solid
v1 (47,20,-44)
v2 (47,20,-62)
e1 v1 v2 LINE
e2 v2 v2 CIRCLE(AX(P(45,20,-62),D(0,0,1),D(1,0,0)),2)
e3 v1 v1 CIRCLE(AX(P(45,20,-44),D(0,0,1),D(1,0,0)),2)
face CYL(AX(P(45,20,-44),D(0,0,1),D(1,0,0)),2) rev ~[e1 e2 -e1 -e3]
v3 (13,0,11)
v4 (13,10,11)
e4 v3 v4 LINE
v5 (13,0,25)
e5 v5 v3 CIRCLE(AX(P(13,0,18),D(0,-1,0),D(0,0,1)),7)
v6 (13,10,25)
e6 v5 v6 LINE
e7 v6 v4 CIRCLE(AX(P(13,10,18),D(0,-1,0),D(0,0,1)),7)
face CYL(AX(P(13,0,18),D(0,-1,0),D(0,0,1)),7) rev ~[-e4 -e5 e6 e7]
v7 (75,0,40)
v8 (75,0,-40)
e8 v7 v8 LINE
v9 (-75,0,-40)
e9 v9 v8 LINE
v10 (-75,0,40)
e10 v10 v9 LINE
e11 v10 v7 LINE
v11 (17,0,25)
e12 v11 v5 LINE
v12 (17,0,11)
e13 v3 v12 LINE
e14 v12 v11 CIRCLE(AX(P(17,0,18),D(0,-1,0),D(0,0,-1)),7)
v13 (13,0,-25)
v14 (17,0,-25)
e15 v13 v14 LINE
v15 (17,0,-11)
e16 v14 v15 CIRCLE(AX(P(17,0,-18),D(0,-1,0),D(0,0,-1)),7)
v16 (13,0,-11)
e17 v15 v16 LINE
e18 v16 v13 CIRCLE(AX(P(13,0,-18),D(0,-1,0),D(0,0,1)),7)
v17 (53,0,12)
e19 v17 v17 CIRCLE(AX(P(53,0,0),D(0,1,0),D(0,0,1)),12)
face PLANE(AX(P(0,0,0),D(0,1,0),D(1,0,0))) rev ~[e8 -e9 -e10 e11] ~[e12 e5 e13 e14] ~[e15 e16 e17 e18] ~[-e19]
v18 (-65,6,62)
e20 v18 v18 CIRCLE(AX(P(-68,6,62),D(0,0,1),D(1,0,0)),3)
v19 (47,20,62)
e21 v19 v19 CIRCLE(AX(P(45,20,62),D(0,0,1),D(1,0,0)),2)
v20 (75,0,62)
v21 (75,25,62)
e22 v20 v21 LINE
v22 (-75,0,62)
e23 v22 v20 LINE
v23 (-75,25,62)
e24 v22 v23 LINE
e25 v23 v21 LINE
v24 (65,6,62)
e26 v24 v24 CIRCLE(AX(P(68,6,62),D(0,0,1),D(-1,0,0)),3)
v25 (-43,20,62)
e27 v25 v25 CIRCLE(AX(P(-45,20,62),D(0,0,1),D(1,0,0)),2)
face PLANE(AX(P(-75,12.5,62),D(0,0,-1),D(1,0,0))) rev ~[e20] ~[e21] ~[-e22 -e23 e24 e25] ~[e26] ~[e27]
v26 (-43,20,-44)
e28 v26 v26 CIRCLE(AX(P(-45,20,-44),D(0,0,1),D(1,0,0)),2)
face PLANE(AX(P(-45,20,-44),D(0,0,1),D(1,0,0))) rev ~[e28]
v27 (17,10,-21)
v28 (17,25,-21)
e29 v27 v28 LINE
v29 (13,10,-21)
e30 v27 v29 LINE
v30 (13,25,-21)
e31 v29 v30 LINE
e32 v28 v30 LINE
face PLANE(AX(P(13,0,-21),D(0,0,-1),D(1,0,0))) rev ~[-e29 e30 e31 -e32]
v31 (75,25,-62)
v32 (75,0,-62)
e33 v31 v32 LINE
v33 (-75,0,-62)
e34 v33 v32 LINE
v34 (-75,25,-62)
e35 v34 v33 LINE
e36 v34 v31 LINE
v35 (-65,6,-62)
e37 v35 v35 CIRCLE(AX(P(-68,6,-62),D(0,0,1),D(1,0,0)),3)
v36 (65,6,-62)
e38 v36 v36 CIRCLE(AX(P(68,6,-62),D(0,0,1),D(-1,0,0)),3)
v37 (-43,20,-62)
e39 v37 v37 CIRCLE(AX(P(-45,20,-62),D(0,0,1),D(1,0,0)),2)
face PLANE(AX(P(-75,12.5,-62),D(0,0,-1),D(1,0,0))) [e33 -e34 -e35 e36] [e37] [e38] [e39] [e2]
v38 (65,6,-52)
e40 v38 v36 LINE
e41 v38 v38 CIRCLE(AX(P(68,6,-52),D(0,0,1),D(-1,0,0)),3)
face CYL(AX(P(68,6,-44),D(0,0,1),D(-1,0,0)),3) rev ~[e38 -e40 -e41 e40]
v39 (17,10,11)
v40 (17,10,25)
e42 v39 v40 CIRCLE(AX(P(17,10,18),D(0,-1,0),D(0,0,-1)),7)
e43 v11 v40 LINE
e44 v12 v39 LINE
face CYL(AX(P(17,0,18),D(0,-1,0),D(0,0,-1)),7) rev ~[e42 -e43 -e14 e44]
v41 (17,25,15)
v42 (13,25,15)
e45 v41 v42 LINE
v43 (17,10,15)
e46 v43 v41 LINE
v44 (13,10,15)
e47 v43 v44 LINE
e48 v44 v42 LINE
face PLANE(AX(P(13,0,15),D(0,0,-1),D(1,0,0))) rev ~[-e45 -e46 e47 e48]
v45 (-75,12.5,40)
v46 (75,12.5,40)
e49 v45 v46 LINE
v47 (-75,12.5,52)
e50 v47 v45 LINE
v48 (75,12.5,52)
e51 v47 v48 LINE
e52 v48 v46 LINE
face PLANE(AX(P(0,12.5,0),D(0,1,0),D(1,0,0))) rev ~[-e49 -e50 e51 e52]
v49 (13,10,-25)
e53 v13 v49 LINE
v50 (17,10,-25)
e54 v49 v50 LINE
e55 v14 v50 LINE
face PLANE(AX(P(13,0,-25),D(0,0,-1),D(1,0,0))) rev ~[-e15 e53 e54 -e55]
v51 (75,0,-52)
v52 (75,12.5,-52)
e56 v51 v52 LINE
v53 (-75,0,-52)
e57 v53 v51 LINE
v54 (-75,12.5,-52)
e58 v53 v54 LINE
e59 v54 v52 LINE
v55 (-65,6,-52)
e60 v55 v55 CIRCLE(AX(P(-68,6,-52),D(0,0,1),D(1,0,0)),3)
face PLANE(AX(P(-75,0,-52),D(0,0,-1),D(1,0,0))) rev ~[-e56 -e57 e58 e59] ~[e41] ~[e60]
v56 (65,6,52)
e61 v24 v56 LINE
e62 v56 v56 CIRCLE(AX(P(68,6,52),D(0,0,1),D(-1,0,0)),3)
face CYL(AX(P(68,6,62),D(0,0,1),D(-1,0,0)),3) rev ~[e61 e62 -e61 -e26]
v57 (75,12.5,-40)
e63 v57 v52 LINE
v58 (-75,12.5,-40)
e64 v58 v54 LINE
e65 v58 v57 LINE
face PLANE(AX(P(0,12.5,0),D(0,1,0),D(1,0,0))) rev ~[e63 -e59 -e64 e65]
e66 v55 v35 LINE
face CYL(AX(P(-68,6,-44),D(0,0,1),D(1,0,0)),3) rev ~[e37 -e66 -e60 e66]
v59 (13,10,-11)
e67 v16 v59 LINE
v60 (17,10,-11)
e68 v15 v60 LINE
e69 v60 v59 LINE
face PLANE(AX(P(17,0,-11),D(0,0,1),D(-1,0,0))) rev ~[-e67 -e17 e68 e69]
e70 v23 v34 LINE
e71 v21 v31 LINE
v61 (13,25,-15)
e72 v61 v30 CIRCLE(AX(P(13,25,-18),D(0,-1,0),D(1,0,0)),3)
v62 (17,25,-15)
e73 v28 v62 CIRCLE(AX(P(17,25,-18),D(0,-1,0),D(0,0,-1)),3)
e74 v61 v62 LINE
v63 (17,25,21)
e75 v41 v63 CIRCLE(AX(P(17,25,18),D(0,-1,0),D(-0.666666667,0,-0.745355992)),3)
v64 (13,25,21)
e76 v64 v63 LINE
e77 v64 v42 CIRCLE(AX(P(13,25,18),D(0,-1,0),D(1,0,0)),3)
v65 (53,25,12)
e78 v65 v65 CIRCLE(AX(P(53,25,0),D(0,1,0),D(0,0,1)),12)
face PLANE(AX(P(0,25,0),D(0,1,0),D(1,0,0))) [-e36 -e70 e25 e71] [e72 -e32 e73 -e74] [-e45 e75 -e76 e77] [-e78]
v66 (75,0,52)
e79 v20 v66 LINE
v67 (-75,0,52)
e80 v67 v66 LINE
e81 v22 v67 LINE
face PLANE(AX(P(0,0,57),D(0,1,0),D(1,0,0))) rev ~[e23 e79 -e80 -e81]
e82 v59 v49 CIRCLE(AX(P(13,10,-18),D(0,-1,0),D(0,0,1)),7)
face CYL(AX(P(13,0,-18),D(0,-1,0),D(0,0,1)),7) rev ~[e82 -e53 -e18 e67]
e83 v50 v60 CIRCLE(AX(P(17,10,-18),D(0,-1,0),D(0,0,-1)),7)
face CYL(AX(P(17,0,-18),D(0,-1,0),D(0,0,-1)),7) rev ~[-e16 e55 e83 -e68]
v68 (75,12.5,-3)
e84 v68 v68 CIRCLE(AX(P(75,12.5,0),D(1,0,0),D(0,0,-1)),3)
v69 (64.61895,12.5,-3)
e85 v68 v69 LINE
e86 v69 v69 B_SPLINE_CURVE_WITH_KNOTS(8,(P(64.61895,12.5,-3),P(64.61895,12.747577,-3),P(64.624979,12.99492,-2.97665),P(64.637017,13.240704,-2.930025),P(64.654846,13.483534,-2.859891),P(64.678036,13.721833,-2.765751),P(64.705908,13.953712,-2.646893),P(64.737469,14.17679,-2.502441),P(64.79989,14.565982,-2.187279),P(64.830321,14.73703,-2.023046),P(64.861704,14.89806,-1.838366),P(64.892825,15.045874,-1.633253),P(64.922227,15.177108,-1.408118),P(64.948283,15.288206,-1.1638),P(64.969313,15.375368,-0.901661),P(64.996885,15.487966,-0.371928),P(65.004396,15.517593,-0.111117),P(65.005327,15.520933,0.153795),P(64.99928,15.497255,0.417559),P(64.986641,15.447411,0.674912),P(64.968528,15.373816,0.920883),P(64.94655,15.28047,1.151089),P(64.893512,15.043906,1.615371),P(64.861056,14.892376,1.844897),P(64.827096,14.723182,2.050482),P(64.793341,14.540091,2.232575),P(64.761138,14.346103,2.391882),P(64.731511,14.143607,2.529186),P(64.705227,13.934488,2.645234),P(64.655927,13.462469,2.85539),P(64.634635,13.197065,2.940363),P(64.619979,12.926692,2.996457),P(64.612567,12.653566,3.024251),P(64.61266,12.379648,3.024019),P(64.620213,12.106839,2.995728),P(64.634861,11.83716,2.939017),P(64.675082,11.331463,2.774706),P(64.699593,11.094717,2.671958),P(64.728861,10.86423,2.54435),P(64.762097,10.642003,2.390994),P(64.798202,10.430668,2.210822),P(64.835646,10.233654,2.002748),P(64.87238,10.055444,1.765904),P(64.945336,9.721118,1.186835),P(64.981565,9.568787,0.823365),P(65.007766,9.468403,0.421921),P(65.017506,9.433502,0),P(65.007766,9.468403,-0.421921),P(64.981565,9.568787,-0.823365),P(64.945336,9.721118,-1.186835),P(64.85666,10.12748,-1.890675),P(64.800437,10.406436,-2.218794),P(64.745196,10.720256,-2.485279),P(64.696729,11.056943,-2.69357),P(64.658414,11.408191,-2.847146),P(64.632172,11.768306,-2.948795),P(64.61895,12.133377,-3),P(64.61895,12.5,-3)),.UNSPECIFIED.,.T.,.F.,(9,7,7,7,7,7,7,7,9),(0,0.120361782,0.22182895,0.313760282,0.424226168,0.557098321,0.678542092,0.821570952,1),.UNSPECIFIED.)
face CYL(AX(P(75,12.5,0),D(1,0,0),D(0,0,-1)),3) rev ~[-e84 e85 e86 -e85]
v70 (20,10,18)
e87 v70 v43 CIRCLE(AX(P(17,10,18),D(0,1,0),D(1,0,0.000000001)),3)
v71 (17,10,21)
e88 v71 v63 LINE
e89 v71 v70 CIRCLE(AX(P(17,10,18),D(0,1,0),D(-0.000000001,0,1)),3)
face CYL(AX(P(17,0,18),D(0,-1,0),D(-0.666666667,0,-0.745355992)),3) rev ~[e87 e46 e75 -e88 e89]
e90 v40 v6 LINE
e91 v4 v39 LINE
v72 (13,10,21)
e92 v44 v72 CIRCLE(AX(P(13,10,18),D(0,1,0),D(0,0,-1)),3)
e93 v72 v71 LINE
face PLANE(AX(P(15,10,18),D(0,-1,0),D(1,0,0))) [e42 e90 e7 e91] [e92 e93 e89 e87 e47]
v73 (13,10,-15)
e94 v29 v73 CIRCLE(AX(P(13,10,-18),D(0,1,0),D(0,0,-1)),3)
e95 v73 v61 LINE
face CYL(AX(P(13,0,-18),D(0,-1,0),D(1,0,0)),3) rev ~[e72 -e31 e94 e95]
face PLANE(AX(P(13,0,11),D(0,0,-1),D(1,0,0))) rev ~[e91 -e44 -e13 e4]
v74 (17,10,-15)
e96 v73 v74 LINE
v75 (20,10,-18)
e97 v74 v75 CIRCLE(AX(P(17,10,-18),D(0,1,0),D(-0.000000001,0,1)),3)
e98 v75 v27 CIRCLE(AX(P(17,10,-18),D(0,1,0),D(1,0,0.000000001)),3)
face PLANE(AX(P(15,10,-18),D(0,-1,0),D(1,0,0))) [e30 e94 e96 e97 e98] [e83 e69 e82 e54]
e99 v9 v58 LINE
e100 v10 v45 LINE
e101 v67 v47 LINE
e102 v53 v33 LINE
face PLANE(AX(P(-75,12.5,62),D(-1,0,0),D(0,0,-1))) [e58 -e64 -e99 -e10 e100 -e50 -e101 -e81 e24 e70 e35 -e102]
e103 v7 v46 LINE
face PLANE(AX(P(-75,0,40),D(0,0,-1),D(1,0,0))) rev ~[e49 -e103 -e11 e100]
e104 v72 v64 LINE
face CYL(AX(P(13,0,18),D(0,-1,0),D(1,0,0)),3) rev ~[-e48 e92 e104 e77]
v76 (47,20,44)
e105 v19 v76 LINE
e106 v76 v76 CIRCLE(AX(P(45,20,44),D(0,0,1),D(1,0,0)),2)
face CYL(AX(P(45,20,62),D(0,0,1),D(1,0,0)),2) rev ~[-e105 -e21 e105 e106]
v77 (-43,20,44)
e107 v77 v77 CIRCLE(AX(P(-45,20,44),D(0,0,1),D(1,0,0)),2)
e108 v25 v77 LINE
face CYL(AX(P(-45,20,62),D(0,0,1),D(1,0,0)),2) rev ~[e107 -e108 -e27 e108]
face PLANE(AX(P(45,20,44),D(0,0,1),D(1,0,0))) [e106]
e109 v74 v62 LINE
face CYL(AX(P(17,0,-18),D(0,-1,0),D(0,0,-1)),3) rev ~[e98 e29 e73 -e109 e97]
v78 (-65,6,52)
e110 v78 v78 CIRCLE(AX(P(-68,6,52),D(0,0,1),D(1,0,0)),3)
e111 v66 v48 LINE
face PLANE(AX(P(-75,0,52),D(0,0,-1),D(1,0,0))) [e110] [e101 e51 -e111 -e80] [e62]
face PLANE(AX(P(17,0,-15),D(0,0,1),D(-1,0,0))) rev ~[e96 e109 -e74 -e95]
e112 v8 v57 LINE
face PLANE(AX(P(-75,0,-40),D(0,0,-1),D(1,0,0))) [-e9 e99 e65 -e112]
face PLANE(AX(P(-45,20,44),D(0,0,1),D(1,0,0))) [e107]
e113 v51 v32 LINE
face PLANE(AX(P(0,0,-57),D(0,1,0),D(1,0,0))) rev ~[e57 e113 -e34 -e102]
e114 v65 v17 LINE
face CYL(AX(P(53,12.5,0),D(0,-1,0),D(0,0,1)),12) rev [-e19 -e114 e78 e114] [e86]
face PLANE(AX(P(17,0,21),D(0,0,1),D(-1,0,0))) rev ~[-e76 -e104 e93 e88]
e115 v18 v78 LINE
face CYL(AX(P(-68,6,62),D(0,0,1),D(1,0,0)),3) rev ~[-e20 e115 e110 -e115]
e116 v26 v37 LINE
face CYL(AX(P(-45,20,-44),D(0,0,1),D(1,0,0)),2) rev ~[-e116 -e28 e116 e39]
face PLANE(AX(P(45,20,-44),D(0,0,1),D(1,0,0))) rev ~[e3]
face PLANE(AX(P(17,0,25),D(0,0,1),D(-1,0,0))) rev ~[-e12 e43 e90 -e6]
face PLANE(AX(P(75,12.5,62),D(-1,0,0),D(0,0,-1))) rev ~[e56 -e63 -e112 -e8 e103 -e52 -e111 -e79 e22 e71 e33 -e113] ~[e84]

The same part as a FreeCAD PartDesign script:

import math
import FreeCAD as App
import Part
import Sketcher
from FreeCAD import Vector


def add_polygon(sketch, points):
    """Adds a closed chain of lines whose ends are joined by coincident constraints."""
    first, n = sketch.GeometryCount, len(points)
    for a, b in zip(points, points[1:] + points[:1]):
        sketch.addGeometry(Part.LineSegment(App.Vector(*a, 0), App.Vector(*b, 0)), False)
    for i in range(n):
        sketch.addConstraint(Sketcher.Constraint("Coincident", first + i, 2, first + (i + 1) % n, 1))

doc = App.newDocument("Part")
body = doc.addObject("PartDesign::Body", "Body")

sketch1 = body.newObject("Sketcher::SketchObject", "Sketch")
sketch1.AttachmentSupport = (doc.getObject("XZ_Plane"), [""])
sketch1.MapMode = "FlatFace"
add_polygon(sketch1, [(-75, -62), (-75, -52), (75, -52), (75, -62)])
sketch1.addConstraint([
    Sketcher.Constraint("Vertical", 0),
    Sketcher.Constraint("Horizontal", 1),
    Sketcher.Constraint("Vertical", 2),
    Sketcher.Constraint("Horizontal", 3),
    Sketcher.Constraint("DistanceX", 1, 1, 1, 2, 150.0),
    Sketcher.Constraint("DistanceY", 0, 1, 0, 2, 10.0),
    Sketcher.Constraint("DistanceX", 0, 2, -1, 1, 75.0),
    Sketcher.Constraint("DistanceY", 0, 2, -1, 1, 52.0),
])
pad1 = body.newObject("PartDesign::Pad", "Pad")
pad1.Profile = sketch1
pad1.Length = 12.5
pad1.Reversed = True
body2 = doc.addObject("PartDesign::Body", "Body001")

sketch2 = body2.newObject("Sketcher::SketchObject", "Sketch001")
sketch2.AttachmentSupport = (doc.getObject("XZ_Plane001"), [""])
sketch2.MapMode = "FlatFace"
add_polygon(sketch2, [(-75, -40), (-75, 40), (75, 40), (75, -40)])
sketch2.addGeometry(Part.Circle(Vector(53, 0, 0), Vector(0, 0, 1), 12), False)
sketch2.addConstraint([
    Sketcher.Constraint("Vertical", 0),
    Sketcher.Constraint("Horizontal", 1),
    Sketcher.Constraint("Vertical", 2),
    Sketcher.Constraint("Horizontal", 3),
    Sketcher.Constraint("Symmetric", 0, 2, 2, 2, -1, 1),
    Sketcher.Constraint("PointOnObject", 4, 3, -1),
    Sketcher.Constraint("Diameter", 4, 24.0),
    Sketcher.Constraint("DistanceX", 1, 1, 1, 2, 150.0),
    Sketcher.Constraint("DistanceY", 0, 1, 0, 2, 80.0),
    Sketcher.Constraint("DistanceX", -1, 1, 4, 3, 53.0),
])
pad2 = body2.newObject("PartDesign::Pad", "Pad001")
pad2.Profile = sketch2
pad2.Length = 12.5
pad2.Reversed = True
body3 = doc.addObject("PartDesign::Body", "Body002")

sketch3 = body3.newObject("Sketcher::SketchObject", "Sketch002")
sketch3.AttachmentSupport = (doc.getObject("XZ_Plane002"), [""])
sketch3.MapMode = "FlatFace"
add_polygon(sketch3, [(-75, 52), (-75, 62), (75, 62), (75, 52)])
sketch3.addConstraint([
    Sketcher.Constraint("Vertical", 0),
    Sketcher.Constraint("Horizontal", 1),
    Sketcher.Constraint("Vertical", 2),
    Sketcher.Constraint("Horizontal", 3),
    Sketcher.Constraint("DistanceX", 1, 1, 1, 2, 150.0),
    Sketcher.Constraint("DistanceY", 0, 1, 0, 2, 10.0),
    Sketcher.Constraint("DistanceX", 0, 2, -1, 1, 75.0),
    Sketcher.Constraint("DistanceY", -1, 1, 0, 2, 62.0),
])
pad3 = body3.newObject("PartDesign::Pad", "Pad002")
pad3.Profile = sketch3
pad3.Length = 12.5
pad3.Reversed = True
body.AllowCompound = True
doc.recompute()

boolean = body.newObject("PartDesign::Boolean", "Boolean")
boolean.Type = "Fuse"
boolean.addObjects([body2])
doc.recompute()

boolean2 = body.newObject("PartDesign::Boolean", "Boolean001")
boolean2.Type = "Fuse"
boolean2.addObjects([body3])

sketch4 = body.newObject("Sketcher::SketchObject", "Sketch003")
sketch4.AttachmentSupport = (doc.getObject("XZ_Plane"), [""])
sketch4.MapMode = "FlatFace"
sketch4.AttachmentOffset = App.Placement(Vector(0, 0, -12.5), App.Rotation())
add_polygon(sketch4, [(-75, -62), (-75, 62), (75, 62), (75, -62)])
sketch4.addGeometry(Part.Circle(Vector(53, 0, 0), Vector(0, 0, 1), 12), False)
sketch4.addConstraint([
    Sketcher.Constraint("Vertical", 0),
    Sketcher.Constraint("Horizontal", 1),
    Sketcher.Constraint("Vertical", 2),
    Sketcher.Constraint("Horizontal", 3),
    Sketcher.Constraint("Symmetric", 0, 2, 2, 2, -1, 1),
    Sketcher.Constraint("PointOnObject", 4, 3, -1),
    Sketcher.Constraint("Diameter", 4, 24.0),
    Sketcher.Constraint("DistanceX", 1, 1, 1, 2, 150.0),
    Sketcher.Constraint("DistanceY", 0, 1, 0, 2, 124.0),
    Sketcher.Constraint("DistanceX", -1, 1, 4, 3, 53.0),
])
pad4 = body.newObject("PartDesign::Pad", "Pad003")
pad4.Profile = sketch4
pad4.Length = 12.5
pad4.Reversed = True

sketch5 = body.newObject("Sketcher::SketchObject", "Sketch004")
sketch5.AttachmentSupport = (doc.getObject("XZ_Plane"), [""])
sketch5.MapMode = "FlatFace"
sketch5.addGeometry([
    Part.ArcOfCircle(Part.Circle(Vector(17, -18, 0), Vector(0, 0, 1), 3), math.radians(-90), math.radians(90)),
    Part.LineSegment(Vector(17, -15, 0), Vector(13, -15, 0)),
    Part.ArcOfCircle(Part.Circle(Vector(13, -18, 0), Vector(0, 0, 1), 3), math.radians(90), math.radians(270)),
    Part.LineSegment(Vector(13, -21, 0), Vector(17, -21, 0)),
    Part.ArcOfCircle(Part.Circle(Vector(17, 18, 0), Vector(0, 0, 1), 3), math.radians(-90), math.radians(90)),
    Part.LineSegment(Vector(17, 21, 0), Vector(13, 21, 0)),
    Part.ArcOfCircle(Part.Circle(Vector(13, 18, 0), Vector(0, 0, 1), 3), math.radians(90), math.radians(270)),
    Part.LineSegment(Vector(13, 15, 0), Vector(17, 15, 0)),
], False)
sketch5.addConstraint([
    Sketcher.Constraint("Tangent", 0, 2, 1, 1),
    Sketcher.Constraint("Tangent", 1, 2, 2, 1),
    Sketcher.Constraint("Tangent", 2, 2, 3, 1),
    Sketcher.Constraint("Tangent", 3, 2, 0, 1),
    Sketcher.Constraint("Tangent", 4, 2, 5, 1),
    Sketcher.Constraint("Tangent", 5, 2, 6, 1),
    Sketcher.Constraint("Tangent", 6, 2, 7, 1),
    Sketcher.Constraint("Tangent", 7, 2, 4, 1),
    Sketcher.Constraint("Horizontal", 1),
    Sketcher.Constraint("Horizontal", 3),
    Sketcher.Constraint("Horizontal", 5),
    Sketcher.Constraint("Horizontal", 7),
    Sketcher.Constraint("Equal", 2, 4),
    Sketcher.Constraint("Symmetric", 0, 3, 4, 3, -1),
    Sketcher.Constraint("Vertical", 2, 3, 6, 3),
    Sketcher.Constraint("Radius", 0, 3.0),
    Sketcher.Constraint("DistanceX", 1, 2, 1, 1, 4.0),
    Sketcher.Constraint("DistanceX", -1, 1, 0, 3, 17.0),
    Sketcher.Constraint("DistanceY", 0, 3, -1, 1, 18.0),
])
pocket1 = body.newObject("PartDesign::Pocket", "Pocket")
pocket1.Profile = sketch5
pocket1.Type = "ThroughAll"

sketch6 = body.newObject("Sketcher::SketchObject", "Sketch005")
sketch6.AttachmentSupport = (doc.getObject("XZ_Plane"), [""])
sketch6.MapMode = "FlatFace"
sketch6.addGeometry([
    Part.LineSegment(Vector(17, 25, 0), Vector(13, 25, 0)),
    Part.ArcOfCircle(Part.Circle(Vector(13, 18, 0), Vector(0, 0, 1), 7), math.radians(90), math.radians(270)),
    Part.LineSegment(Vector(13, 11, 0), Vector(17, 11, 0)),
    Part.ArcOfCircle(Part.Circle(Vector(17, 18, 0), Vector(0, 0, 1), 7), math.radians(-90), math.radians(90)),
    Part.LineSegment(Vector(17, 15, 0), Vector(13, 15, 0)),
    Part.ArcOfCircle(Part.Circle(Vector(13, 18, 0), Vector(0, 0, 1), 3), math.radians(90), math.radians(270)),
    Part.LineSegment(Vector(13, 21, 0), Vector(17, 21, 0)),
    Part.ArcOfCircle(Part.Circle(Vector(17, 18, 0), Vector(0, 0, 1), 3), math.radians(0), math.radians(90)),
    Part.ArcOfCircle(Part.Circle(Vector(17, 18, 0), Vector(0, 0, 1), 3), math.radians(-90), math.radians(0)),
    Part.LineSegment(Vector(17, -11, 0), Vector(13, -11, 0)),
    Part.ArcOfCircle(Part.Circle(Vector(13, -18, 0), Vector(0, 0, 1), 7), math.radians(90), math.radians(270)),
    Part.LineSegment(Vector(13, -25, 0), Vector(17, -25, 0)),
    Part.ArcOfCircle(Part.Circle(Vector(17, -18, 0), Vector(0, 0, 1), 7), math.radians(-90), math.radians(90)),
    Part.LineSegment(Vector(17, -21, 0), Vector(13, -21, 0)),
    Part.ArcOfCircle(Part.Circle(Vector(13, -18, 0), Vector(0, 0, 1), 3), math.radians(90), math.radians(270)),
    Part.LineSegment(Vector(13, -15, 0), Vector(17, -15, 0)),
    Part.ArcOfCircle(Part.Circle(Vector(17, -18, 0), Vector(0, 0, 1), 3), math.radians(0), math.radians(90)),
    Part.ArcOfCircle(Part.Circle(Vector(17, -18, 0), Vector(0, 0, 1), 3), math.radians(-90), math.radians(0)),
], False)
sketch6.addConstraint([
    Sketcher.Constraint("Tangent", 0, 2, 1, 1),
    Sketcher.Constraint("Tangent", 1, 2, 2, 1),
    Sketcher.Constraint("Tangent", 2, 2, 3, 1),
    Sketcher.Constraint("Tangent", 3, 2, 0, 1),
    Sketcher.Constraint("Tangent", 4, 2, 5, 2),
    Sketcher.Constraint("Tangent", 5, 1, 6, 1),
    Sketcher.Constraint("Tangent", 6, 2, 7, 2),
    Sketcher.Constraint("Tangent", 7, 1, 8, 2),
    Sketcher.Constraint("Tangent", 8, 1, 4, 1),
    Sketcher.Constraint("Tangent", 9, 2, 10, 1),
    Sketcher.Constraint("Tangent", 10, 2, 11, 1),
    Sketcher.Constraint("Tangent", 11, 2, 12, 1),
    Sketcher.Constraint("Tangent", 12, 2, 9, 1),
    Sketcher.Constraint("Tangent", 13, 2, 14, 2),
    Sketcher.Constraint("Tangent", 14, 1, 15, 1),
    Sketcher.Constraint("Tangent", 15, 2, 16, 2),
    Sketcher.Constraint("Tangent", 16, 1, 17, 2),
    Sketcher.Constraint("Tangent", 17, 1, 13, 1),
    Sketcher.Constraint("Horizontal", 0),
    Sketcher.Constraint("Horizontal", 2),
    Sketcher.Constraint("Horizontal", 4),
    Sketcher.Constraint("Horizontal", 6),
    Sketcher.Constraint("Horizontal", 9),
    Sketcher.Constraint("Horizontal", 11),
    Sketcher.Constraint("Horizontal", 13),
    Sketcher.Constraint("Horizontal", 15),
    Sketcher.Constraint("Coincident", 5, 3, 1, 3),
    Sketcher.Constraint("Coincident", 7, 3, 3, 3),
    Sketcher.Constraint("Coincident", 14, 3, 10, 3),
    Sketcher.Constraint("Coincident", 16, 3, 12, 3),
    Sketcher.Constraint("Equal", 3, 10),
    Sketcher.Constraint("Equal", 8, 14),
    Sketcher.Constraint("Symmetric", 1, 3, 10, 3, -1),
    Sketcher.Constraint("Symmetric", 7, 1, 16, 1, -1),
    Sketcher.Constraint("Horizontal", 8, 3, 7, 1),
    Sketcher.Constraint("Radius", 1, 7.0),
    Sketcher.Constraint("Radius", 5, 3.0),
    Sketcher.Constraint("DistanceX", 0, 2, 0, 1, 4.0),
    Sketcher.Constraint("DistanceX", -1, 1, 1, 3, 13.0),
    Sketcher.Constraint("DistanceY", -1, 1, 1, 3, 18.0),
])
pocket2 = body.newObject("PartDesign::Pocket", "Pocket001")
pocket2.Profile = sketch6
pocket2.Length = 10

sketch7 = body.newObject("Sketcher::SketchObject", "Sketch006")
sketch7.AttachmentSupport = (doc.getObject("YZ_Plane"), [""])
sketch7.MapMode = "FlatFace"
sketch7.AttachmentOffset = App.Placement(Vector(0, 0, 75), App.Rotation())
sketch7.addGeometry(Part.Circle(Vector(12.5, 0, 0), Vector(0, 0, 1), 3), False)
sketch7.addConstraint([
    Sketcher.Constraint("PointOnObject", 0, 3, -1),
    Sketcher.Constraint("Diameter", 0, 6.0),
    Sketcher.Constraint("DistanceX", -1, 1, 0, 3, 12.5),
])
pocket3 = body.newObject("PartDesign::Pocket", "Pocket002")
pocket3.Profile = sketch7
pocket3.Length = 15

sketch8 = body.newObject("Sketcher::SketchObject", "Sketch007")
sketch8.AttachmentSupport = (doc.getObject("XY_Plane"), [""])
sketch8.MapMode = "FlatFace"
sketch8.AttachmentOffset = App.Placement(Vector(0, 0, 62), App.Rotation())
sketch8.addGeometry([
    Part.Circle(Vector(-45, 20, 0), Vector(0, 0, 1), 2),
    Part.Circle(Vector(45, 20, 0), Vector(0, 0, 1), 2),
    Part.Circle(Vector(-68, 6, 0), Vector(0, 0, 1), 3),
    Part.Circle(Vector(68, 6, 0), Vector(0, 0, 1), 3),
], False)
sketch8.addConstraint([
    Sketcher.Constraint("Equal", 0, 1),
    Sketcher.Constraint("Equal", 2, 3),
    Sketcher.Constraint("Symmetric", 0, 3, 1, 3, -2),
    Sketcher.Constraint("Symmetric", 2, 3, 3, 3, -2),
    Sketcher.Constraint("Diameter", 0, 4.0),
    Sketcher.Constraint("Diameter", 2, 6.0),
    Sketcher.Constraint("DistanceX", 0, 3, -1, 1, 45.0),
    Sketcher.Constraint("DistanceY", -1, 1, 0, 3, 20.0),
    Sketcher.Constraint("DistanceX", 2, 3, -1, 1, 68.0),
    Sketcher.Constraint("DistanceY", -1, 1, 2, 3, 6.0),
])
pocket4 = body.newObject("PartDesign::Pocket", "Pocket003")
pocket4.Profile = sketch8
pocket4.Length = 18

sketch9 = body.newObject("Sketcher::SketchObject", "Sketch008")
sketch9.AttachmentSupport = (doc.getObject("XY_Plane"), [""])
sketch9.MapMode = "FlatFace"
sketch9.AttachmentOffset = App.Placement(Vector(0, 0, -44), App.Rotation())
sketch9.addGeometry([
    Part.Circle(Vector(-45, 20, 0), Vector(0, 0, 1), 2),
    Part.Circle(Vector(45, 20, 0), Vector(0, 0, 1), 2),
    Part.Circle(Vector(-68, 6, 0), Vector(0, 0, 1), 3),
    Part.Circle(Vector(68, 6, 0), Vector(0, 0, 1), 3),
], False)
sketch9.addConstraint([
    Sketcher.Constraint("Equal", 0, 1),
    Sketcher.Constraint("Equal", 2, 3),
    Sketcher.Constraint("Symmetric", 0, 3, 1, 3, -2),
    Sketcher.Constraint("Symmetric", 2, 3, 3, 3, -2),
    Sketcher.Constraint("Diameter", 0, 4.0),
    Sketcher.Constraint("Diameter", 2, 6.0),
    Sketcher.Constraint("DistanceX", 0, 3, -1, 1, 45.0),
    Sketcher.Constraint("DistanceY", -1, 1, 0, 3, 20.0),
    Sketcher.Constraint("DistanceX", 2, 3, -1, 1, 68.0),
    Sketcher.Constraint("DistanceY", -1, 1, 2, 3, 6.0),
])
pocket5 = body.newObject("PartDesign::Pocket", "Pocket004")
pocket5.Profile = sketch9
pocket5.Length = 18

doc.recompute()
